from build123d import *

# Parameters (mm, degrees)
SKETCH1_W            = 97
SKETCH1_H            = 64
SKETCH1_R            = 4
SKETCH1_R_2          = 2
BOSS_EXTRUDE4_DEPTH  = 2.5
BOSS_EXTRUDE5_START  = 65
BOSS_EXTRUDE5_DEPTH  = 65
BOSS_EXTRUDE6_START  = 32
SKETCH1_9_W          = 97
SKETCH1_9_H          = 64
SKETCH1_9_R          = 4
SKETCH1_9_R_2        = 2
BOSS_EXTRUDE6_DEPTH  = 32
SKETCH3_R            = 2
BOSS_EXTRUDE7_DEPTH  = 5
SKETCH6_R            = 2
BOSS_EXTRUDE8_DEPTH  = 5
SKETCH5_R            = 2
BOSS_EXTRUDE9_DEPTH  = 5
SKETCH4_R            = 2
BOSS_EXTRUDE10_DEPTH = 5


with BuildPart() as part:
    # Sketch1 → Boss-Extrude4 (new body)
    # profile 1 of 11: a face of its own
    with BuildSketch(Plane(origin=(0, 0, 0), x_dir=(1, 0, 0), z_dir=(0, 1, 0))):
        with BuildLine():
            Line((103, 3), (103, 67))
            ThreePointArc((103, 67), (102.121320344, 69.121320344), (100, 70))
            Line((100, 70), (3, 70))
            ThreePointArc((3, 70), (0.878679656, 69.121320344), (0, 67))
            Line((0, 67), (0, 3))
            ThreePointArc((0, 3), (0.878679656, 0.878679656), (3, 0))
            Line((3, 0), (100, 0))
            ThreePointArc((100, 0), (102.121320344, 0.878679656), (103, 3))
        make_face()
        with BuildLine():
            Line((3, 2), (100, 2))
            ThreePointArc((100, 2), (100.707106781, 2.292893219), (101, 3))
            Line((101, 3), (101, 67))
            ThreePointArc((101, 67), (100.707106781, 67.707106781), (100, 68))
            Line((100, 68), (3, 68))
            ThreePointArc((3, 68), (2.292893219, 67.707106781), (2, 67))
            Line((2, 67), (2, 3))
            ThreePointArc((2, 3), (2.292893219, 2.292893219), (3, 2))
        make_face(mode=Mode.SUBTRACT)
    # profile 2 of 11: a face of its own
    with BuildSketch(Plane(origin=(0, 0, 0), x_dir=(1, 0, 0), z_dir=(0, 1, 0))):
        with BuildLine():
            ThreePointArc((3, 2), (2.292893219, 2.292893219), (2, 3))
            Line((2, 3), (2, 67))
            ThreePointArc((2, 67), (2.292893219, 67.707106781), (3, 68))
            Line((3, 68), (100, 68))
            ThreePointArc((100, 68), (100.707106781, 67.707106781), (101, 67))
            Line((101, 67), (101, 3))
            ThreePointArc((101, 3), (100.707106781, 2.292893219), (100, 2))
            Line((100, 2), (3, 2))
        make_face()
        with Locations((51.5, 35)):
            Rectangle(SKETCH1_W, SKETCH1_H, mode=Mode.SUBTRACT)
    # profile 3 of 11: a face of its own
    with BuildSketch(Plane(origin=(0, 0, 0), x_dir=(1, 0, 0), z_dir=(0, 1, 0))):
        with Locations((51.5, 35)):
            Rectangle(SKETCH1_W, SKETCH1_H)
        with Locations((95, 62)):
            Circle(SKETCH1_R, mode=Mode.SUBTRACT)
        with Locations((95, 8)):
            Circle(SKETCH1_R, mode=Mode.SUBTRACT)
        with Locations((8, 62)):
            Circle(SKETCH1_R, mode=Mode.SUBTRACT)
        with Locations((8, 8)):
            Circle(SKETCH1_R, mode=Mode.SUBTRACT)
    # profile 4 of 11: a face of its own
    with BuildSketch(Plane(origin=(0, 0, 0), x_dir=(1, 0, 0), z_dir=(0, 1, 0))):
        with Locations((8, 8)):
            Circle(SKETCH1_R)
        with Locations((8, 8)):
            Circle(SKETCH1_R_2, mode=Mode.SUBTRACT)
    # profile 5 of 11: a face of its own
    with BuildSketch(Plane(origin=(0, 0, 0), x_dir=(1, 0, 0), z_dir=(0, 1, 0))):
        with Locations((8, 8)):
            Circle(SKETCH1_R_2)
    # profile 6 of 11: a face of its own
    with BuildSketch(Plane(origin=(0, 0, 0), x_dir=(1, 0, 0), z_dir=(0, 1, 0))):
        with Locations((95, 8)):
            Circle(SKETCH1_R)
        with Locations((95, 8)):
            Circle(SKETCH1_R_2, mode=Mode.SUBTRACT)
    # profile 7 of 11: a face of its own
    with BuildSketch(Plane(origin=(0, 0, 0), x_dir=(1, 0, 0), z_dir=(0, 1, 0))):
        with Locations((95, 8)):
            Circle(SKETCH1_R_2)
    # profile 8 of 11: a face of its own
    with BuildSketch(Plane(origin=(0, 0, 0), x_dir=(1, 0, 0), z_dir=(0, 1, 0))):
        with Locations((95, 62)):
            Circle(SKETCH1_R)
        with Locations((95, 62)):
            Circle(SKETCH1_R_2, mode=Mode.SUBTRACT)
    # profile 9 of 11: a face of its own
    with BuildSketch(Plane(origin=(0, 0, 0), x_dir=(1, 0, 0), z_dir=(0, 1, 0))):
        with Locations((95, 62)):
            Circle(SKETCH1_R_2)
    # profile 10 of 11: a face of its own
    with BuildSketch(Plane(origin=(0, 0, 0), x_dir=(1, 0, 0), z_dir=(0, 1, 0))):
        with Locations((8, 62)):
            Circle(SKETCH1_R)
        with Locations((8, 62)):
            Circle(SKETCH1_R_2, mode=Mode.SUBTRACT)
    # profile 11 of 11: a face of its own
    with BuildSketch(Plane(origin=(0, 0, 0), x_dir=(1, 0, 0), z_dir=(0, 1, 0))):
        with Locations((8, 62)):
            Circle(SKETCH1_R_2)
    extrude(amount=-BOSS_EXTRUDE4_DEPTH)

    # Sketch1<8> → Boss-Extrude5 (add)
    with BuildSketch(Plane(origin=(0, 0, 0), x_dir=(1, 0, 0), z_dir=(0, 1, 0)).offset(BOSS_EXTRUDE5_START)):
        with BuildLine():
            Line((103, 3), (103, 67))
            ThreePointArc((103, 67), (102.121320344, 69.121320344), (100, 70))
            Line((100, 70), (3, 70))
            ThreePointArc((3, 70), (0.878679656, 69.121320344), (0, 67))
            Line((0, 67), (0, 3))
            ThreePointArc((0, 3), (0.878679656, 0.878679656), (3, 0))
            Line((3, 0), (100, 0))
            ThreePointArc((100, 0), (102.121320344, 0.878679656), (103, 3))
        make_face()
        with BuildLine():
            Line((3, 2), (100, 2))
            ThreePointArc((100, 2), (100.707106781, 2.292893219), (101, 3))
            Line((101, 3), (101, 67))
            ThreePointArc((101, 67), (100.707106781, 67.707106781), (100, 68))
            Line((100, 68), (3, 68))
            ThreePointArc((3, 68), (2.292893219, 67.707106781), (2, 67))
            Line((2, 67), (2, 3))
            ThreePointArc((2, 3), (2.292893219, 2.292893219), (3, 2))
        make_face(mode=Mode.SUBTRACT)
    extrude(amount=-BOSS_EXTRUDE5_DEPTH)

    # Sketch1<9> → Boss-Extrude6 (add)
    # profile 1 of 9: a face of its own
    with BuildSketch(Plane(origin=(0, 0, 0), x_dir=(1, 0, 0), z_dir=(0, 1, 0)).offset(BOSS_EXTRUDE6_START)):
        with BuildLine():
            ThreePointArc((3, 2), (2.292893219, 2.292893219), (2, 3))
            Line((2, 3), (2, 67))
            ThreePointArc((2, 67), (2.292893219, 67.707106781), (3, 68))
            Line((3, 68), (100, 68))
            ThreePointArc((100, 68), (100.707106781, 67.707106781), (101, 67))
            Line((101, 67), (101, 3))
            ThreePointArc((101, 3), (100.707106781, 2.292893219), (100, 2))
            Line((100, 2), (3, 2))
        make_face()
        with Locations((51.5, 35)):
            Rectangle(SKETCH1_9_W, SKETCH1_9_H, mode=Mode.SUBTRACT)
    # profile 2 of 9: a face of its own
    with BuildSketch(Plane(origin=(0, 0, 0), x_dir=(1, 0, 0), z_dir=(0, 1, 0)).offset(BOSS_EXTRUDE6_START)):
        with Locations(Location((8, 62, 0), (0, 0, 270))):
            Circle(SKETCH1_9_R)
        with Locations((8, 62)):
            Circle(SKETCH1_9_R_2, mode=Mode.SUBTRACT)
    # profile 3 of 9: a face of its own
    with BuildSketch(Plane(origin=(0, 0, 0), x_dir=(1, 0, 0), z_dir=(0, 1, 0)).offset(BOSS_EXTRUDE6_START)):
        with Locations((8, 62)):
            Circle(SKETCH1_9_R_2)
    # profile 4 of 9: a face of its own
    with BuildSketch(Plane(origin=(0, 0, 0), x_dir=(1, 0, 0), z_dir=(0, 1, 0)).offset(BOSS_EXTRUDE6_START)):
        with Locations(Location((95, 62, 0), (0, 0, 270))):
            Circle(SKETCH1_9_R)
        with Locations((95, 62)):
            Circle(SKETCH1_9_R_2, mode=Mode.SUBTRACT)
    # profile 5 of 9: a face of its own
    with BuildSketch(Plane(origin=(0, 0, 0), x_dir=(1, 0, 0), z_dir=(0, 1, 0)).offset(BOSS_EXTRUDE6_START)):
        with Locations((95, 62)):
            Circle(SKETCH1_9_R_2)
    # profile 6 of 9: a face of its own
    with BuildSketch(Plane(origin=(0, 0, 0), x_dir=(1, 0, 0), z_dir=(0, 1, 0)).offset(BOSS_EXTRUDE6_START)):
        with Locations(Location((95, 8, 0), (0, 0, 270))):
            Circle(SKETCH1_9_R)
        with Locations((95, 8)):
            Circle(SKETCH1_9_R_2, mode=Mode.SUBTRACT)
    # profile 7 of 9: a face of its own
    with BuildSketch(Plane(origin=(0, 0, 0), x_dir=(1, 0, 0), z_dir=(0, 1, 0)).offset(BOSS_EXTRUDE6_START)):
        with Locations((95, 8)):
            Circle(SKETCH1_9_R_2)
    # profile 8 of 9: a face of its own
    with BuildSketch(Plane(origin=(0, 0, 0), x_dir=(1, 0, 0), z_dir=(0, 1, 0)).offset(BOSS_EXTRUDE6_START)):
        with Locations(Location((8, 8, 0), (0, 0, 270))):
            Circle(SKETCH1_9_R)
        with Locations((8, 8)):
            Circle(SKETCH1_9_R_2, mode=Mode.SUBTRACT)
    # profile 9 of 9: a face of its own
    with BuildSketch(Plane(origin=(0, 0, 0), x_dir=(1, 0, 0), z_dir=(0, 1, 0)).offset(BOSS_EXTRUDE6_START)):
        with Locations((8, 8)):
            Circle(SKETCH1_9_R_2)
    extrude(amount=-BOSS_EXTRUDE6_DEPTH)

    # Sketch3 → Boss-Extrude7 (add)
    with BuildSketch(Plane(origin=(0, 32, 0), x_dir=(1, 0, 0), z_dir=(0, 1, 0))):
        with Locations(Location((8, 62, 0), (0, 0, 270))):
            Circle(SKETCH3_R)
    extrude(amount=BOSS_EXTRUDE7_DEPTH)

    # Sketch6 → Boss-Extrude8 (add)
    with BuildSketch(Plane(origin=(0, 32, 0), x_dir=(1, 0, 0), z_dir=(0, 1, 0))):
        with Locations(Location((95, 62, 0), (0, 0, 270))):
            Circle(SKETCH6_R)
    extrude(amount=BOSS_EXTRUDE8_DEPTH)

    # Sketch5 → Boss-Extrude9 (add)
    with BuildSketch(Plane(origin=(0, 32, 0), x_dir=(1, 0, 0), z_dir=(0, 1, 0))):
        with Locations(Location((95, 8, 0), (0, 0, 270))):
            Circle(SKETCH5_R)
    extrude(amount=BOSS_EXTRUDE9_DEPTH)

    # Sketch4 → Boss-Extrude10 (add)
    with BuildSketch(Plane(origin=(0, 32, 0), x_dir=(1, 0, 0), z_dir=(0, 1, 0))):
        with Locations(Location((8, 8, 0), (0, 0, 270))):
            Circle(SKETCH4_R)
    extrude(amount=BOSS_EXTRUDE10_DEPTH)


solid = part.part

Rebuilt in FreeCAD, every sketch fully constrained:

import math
import FreeCAD as App
import Part
import Sketcher
Q = App.Units.Quantity


def add_polygon(sketch, points):
    """Adds a closed chain of lines whose ends are joined by coincident constraints."""
    first, n = sketch.GeometryCount, len(points)
    for a, b in zip(points, points[1:] + points[:1]):
        sketch.addGeometry(Part.LineSegment(App.Vector(*a, 0), App.Vector(*b, 0)), False)
    for i in range(n):
        sketch.addConstraint(Sketcher.Constraint("Coincident", first + i, 2, first + (i + 1) % n, 1))

doc = App.newDocument("Part")
body = doc.addObject("PartDesign::Body", "Body")

# Sketch on XZ plane
sketch1 = doc.addObject("Sketcher::SketchObject", "Sketch")
body.addObject(sketch1)
sketch1.AttachmentSupport = (doc.XZ_Plane, [""])
sketch1.MapMode = "FlatFace"
sketch1.addGeometry([
    Part.LineSegment(App.Vector(103, -3, 0), App.Vector(103, -67, 0)),  # 0
    Part.ArcOfCircle(Part.Circle(App.Vector(100, -67, 0), App.Vector(0, 0, 1), 3), math.radians(-90), math.radians(0)),  # 1
    Part.LineSegment(App.Vector(100, -70, 0), App.Vector(3, -70, 0)),  # 2
    Part.ArcOfCircle(Part.Circle(App.Vector(3, -67, 0), App.Vector(0, 0, 1), 3), math.radians(180), math.radians(270)),  # 3
    Part.LineSegment(App.Vector(0, -67, 0), App.Vector(0, -3, 0)),  # 4
    Part.ArcOfCircle(Part.Circle(App.Vector(3, -3, 0), App.Vector(0, 0, 1), 3), math.radians(90), math.radians(180)),  # 5
    Part.LineSegment(App.Vector(3, 0, 0), App.Vector(100, 0, 0)),  # 6
    Part.ArcOfCircle(Part.Circle(App.Vector(100, -3, 0), App.Vector(0, 0, 1), 3), math.radians(0), math.radians(90)),  # 7
], False)
sketch1.addConstraint([
    Sketcher.Constraint("Tangent", 0, 2, 1, 2),
    Sketcher.Constraint("Tangent", 1, 1, 2, 1),
    Sketcher.Constraint("Tangent", 2, 2, 3, 2),
    Sketcher.Constraint("Tangent", 3, 1, 4, 1),
    Sketcher.Constraint("Tangent", 4, 2, 5, 2),
    Sketcher.Constraint("Tangent", 5, 1, 6, 1),
    Sketcher.Constraint("Tangent", 6, 2, 7, 2),
    Sketcher.Constraint("Tangent", 7, 1, 0, 1),
    Sketcher.Constraint("Vertical", 0),
    Sketcher.Constraint("Horizontal", 2),
    Sketcher.Constraint("Vertical", 4),
    Sketcher.Constraint("Horizontal", 6),
    Sketcher.Constraint("Equal", 1, 3),
    Sketcher.Constraint("Equal", 3, 5),
    Sketcher.Constraint("Equal", 5, 7),
    Sketcher.Constraint("PointOnObject", 3, 1, -2),
    Sketcher.Constraint("PointOnObject", 5, 1, -1),
    Sketcher.Constraint("Radius", 1, Q("3 mm")),
    Sketcher.Constraint("DistanceX", 2, 2, 2, 1, Q("97 mm")),
    Sketcher.Constraint("DistanceY", 0, 2, 0, 1, Q("64 mm")),
])
pad1 = doc.addObject("PartDesign::Pad", "Pad")
body.addObject(pad1)
pad1.Profile = sketch1
pad1.Length = 2.5

# Sketch on XZ plane
sketch2 = doc.addObject("Sketcher::SketchObject", "Sketch001")
body.addObject(sketch2)
sketch2.AttachmentSupport = (doc.XZ_Plane, [""])
sketch2.MapMode = "FlatFace"
sketch2.AttachmentOffset = App.Placement(App.Vector(0, 0, -65), App.Rotation())
sketch2.addGeometry([
    Part.LineSegment(App.Vector(103, -3, 0), App.Vector(103, -67, 0)),  # 0
    Part.ArcOfCircle(Part.Circle(App.Vector(100, -67, 0), App.Vector(0, 0, 1), 3), math.radians(-90), math.radians(0)),  # 1
    Part.LineSegment(App.Vector(100, -70, 0), App.Vector(3, -70, 0)),  # 2
    Part.ArcOfCircle(Part.Circle(App.Vector(3, -67, 0), App.Vector(0, 0, 1), 3), math.radians(180), math.radians(270)),  # 3
    Part.LineSegment(App.Vector(0, -67, 0), App.Vector(0, -3, 0)),  # 4
    Part.ArcOfCircle(Part.Circle(App.Vector(3, -3, 0), App.Vector(0, 0, 1), 3), math.radians(90), math.radians(180)),  # 5
    Part.LineSegment(App.Vector(3, 0, 0), App.Vector(100, 0, 0)),  # 6
    Part.ArcOfCircle(Part.Circle(App.Vector(100, -3, 0), App.Vector(0, 0, 1), 3), math.radians(0), math.radians(90)),  # 7
    Part.LineSegment(App.Vector(100, -2, 0), App.Vector(3, -2, 0)),  # 8
    Part.ArcOfCircle(Part.Circle(App.Vector(3, -3, 0), App.Vector(0, 0, 1), 1), math.radians(90), math.radians(180)),  # 9
    Part.LineSegment(App.Vector(2, -3, 0), App.Vector(2, -67, 0)),  # 10
    Part.ArcOfCircle(Part.Circle(App.Vector(3, -67, 0), App.Vector(0, 0, 1), 1), math.radians(-180), math.radians(-90)),  # 11
    Part.LineSegment(App.Vector(3, -68, 0), App.Vector(100, -68, 0)),  # 12
    Part.ArcOfCircle(Part.Circle(App.Vector(100, -67, 0), App.Vector(0, 0, 1), 1), math.radians(-90), math.radians(0)),  # 13
    Part.LineSegment(App.Vector(101, -67, 0), App.Vector(101, -3, 0)),  # 14
    Part.ArcOfCircle(Part.Circle(App.Vector(100, -3, 0), App.Vector(0, 0, 1), 1), math.radians(0), math.radians(90)),  # 15
], False)
sketch2.addConstraint([
    Sketcher.Constraint("Tangent", 0, 2, 1, 2),
    Sketcher.Constraint("Tangent", 1, 1, 2, 1),
    Sketcher.Constraint("Tangent", 2, 2, 3, 2),
    Sketcher.Constraint("Tangent", 3, 1, 4, 1),
    Sketcher.Constraint("Tangent", 4, 2, 5, 2),
    Sketcher.Constraint("Tangent", 5, 1, 6, 1),
    Sketcher.Constraint("Tangent", 6, 2, 7, 2),
    Sketcher.Constraint("Tangent", 7, 1, 0, 1),
    Sketcher.Constraint("Tangent", 8, 2, 9, 1),
    Sketcher.Constraint("Tangent", 9, 2, 10, 1),
    Sketcher.Constraint("Tangent", 10, 2, 11, 1),
    Sketcher.Constraint("Tangent", 11, 2, 12, 1),
    Sketcher.Constraint("Tangent", 12, 2, 13, 1),
    Sketcher.Constraint("Tangent", 13, 2, 14, 1),
    Sketcher.Constraint("Tangent", 14, 2, 15, 1),
    Sketcher.Constraint("Tangent", 15, 2, 8, 1),
    Sketcher.Constraint("Vertical", 0),
    Sketcher.Constraint("Horizontal", 2),
    Sketcher.Constraint("Vertical", 4),
    Sketcher.Constraint("Horizontal", 6),
    Sketcher.Constraint("Horizontal", 8),
    Sketcher.Constraint("Vertical", 10),
    Sketcher.Constraint("Horizontal", 12),
    Sketcher.Constraint("Vertical", 14),
    Sketcher.Constraint("Coincident", 9, 3, 5, 3),
    Sketcher.Constraint("Coincident", 11, 3, 3, 3),
    Sketcher.Constraint("Coincident", 13, 3, 1, 3),
    Sketcher.Constraint("Equal", 1, 3),
    Sketcher.Constraint("Equal", 3, 5),
    Sketcher.Constraint("Equal", 5, 7),
    Sketcher.Constraint("Equal", 13, 15),
    Sketcher.Constraint("PointOnObject", 3, 1, -2),
    Sketcher.Constraint("PointOnObject", 5, 1, -1),
    Sketcher.Constraint("Radius", 1, Q("3 mm")),
    Sketcher.Constraint("Radius", 9, Q("1 mm")),
    Sketcher.Constraint("DistanceX", 2, 2, 2, 1, Q("97 mm")),
    Sketcher.Constraint("DistanceY", 0, 2, 0, 1, Q("64 mm")),
])
pad2 = doc.addObject("PartDesign::Pad", "Pad001")
body.addObject(pad2)
pad2.Profile = sketch2
pad2.Length = 65

# Sketch on XZ plane
sketch3 = doc.addObject("Sketcher::SketchObject", "Sketch002")
body.addObject(sketch3)
sketch3.AttachmentSupport = (doc.XZ_Plane, [""])
sketch3.MapMode = "FlatFace"
sketch3.AttachmentOffset = App.Placement(App.Vector(0, 0, -32), App.Rotation())
sketch3.addGeometry(Part.ArcOfCircle(Part.Circle(App.Vector(3, -3, 0), App.Vector(0, 0, 1), 1), math.radians(90), math.radians(180)), False)  # 0
sketch3.addGeometry(Part.LineSegment(App.Vector(3, -2, 0), App.Vector(100, -2, 0)), False)  # 1
sketch3.addGeometry(Part.ArcOfCircle(Part.Circle(App.Vector(100, -3, 0), App.Vector(0, 0, 1), 1), math.radians(0), math.radians(90)), False)  # 2
sketch3.addGeometry(Part.LineSegment(App.Vector(101, -3, 0), App.Vector(101, -67, 0)), False)  # 3
sketch3.addGeometry(Part.ArcOfCircle(Part.Circle(App.Vector(100, -67, 0), App.Vector(0, 0, 1), 1), math.radians(-90), math.radians(0)), False)  # 4
sketch3.addGeometry(Part.LineSegment(App.Vector(100, -68, 0), App.Vector(3, -68, 0)), False)  # 5
sketch3.addGeometry(Part.ArcOfCircle(Part.Circle(App.Vector(3, -67, 0), App.Vector(0, 0, 1), 1), math.radians(-180), math.radians(-90)), False)  # 6
sketch3.addGeometry(Part.LineSegment(App.Vector(2, -67, 0), App.Vector(2, -3, 0)), False)  # 7
add_polygon(sketch3, [(3, -3), (3, -67), (100, -67), (100, -3)])  # lines 8-11
sketch3.addGeometry(Part.Circle(App.Vector(8, -62, 0), App.Vector(0, 0, 1), 4), False)  # 12
sketch3.addGeometry(Part.Circle(App.Vector(95, -62, 0), App.Vector(0, 0, 1), 4), False)  # 13
sketch3.addGeometry(Part.Circle(App.Vector(95, -8, 0), App.Vector(0, 0, 1), 4), False)  # 14
sketch3.addGeometry(Part.Circle(App.Vector(8, -8, 0), App.Vector(0, 0, 1), 4), False)  # 15
sketch3.addConstraint([
    Sketcher.Constraint("Tangent", 0, 1, 1, 1),
    Sketcher.Constraint("Tangent", 1, 2, 2, 2),
    Sketcher.Constraint("Tangent", 2, 1, 3, 1),
    Sketcher.Constraint("Tangent", 3, 2, 4, 2),
    Sketcher.Constraint("Tangent", 4, 1, 5, 1),
    Sketcher.Constraint("Tangent", 5, 2, 6, 2),
    Sketcher.Constraint("Tangent", 6, 1, 7, 1),
    Sketcher.Constraint("Tangent", 7, 2, 0, 2),
    Sketcher.Constraint("Horizontal", 1),
    Sketcher.Constraint("Vertical", 3),
    Sketcher.Constraint("Horizontal", 5),
    Sketcher.Constraint("Vertical", 7),
    Sketcher.Constraint("Vertical", 8),
    Sketcher.Constraint("Horizontal", 9),
    Sketcher.Constraint("Vertical", 10),
    Sketcher.Constraint("Horizontal", 11),
    Sketcher.Constraint("Coincident", 8, 2, 6, 3),
    Sketcher.Constraint("Coincident", 9, 2, 4, 3),
    Sketcher.Constraint("Coincident", 10, 2, 2, 3),
    Sketcher.Constraint("Equal", 0, 2),
    Sketcher.Constraint("Equal", 12, 13),
    Sketcher.Constraint("Equal", 13, 14),
    Sketcher.Constraint("Equal", 14, 15),
    Sketcher.Constraint("Horizontal", 12, 3, 13, 3),
    Sketcher.Constraint("Horizontal", 14, 3, 15, 3),
    Sketcher.Constraint("Vertical", 13, 3, 14, 3),
    Sketcher.Constraint("Vertical", 12, 3, 15, 3),
    Sketcher.Constraint("Diameter", 12, Q("8 mm")),
    Sketcher.Constraint("Radius", 0, Q("1 mm")),
    Sketcher.Constraint("DistanceX", 1, 1, 1, 2, Q("97 mm")),
    Sketcher.Constraint("DistanceY", 3, 2, 3, 1, Q("64 mm")),
    Sketcher.Constraint("DistanceX", -1, 1, 0, 3, Q("3 mm")),
    Sketcher.Constraint("DistanceY", 0, 3, -1, 1, Q("3 mm")),
    Sketcher.Constraint("DistanceX", -1, 1, 12, 3, Q("8 mm")),
    Sketcher.Constraint("DistanceY", 12, 3, -1, 1, Q("62 mm")),
    Sketcher.Constraint("DistanceX", -1, 1, 13, 3, Q("95 mm")),
    Sketcher.Constraint("DistanceY", 14, 3, -1, 1, Q("8 mm")),
])
pad3 = doc.addObject("PartDesign::Pad", "Pad002")
body.addObject(pad3)
pad3.Profile = sketch3
pad3.Length = 32

# Sketch on XZ plane
sketch4 = doc.addObject("Sketcher::SketchObject", "Sketch003")
body.addObject(sketch4)
sketch4.AttachmentSupport = (doc.XZ_Plane, [""])
sketch4.MapMode = "FlatFace"
sketch4.AttachmentOffset = App.Placement(App.Vector(0, 0, -32), App.Rotation())
sketch4.addGeometry(Part.Circle(App.Vector(8, -62, 0), App.Vector(0, 0, 1), 2), False)
sketch4.addConstraint([
    Sketcher.Constraint("Diameter", 0, Q("4 mm")),
    Sketcher.Constraint("DistanceX", -1, 1, 0, 3, Q("8 mm")),
    Sketcher.Constraint("DistanceY", 0, 3, -1, 1, Q("62 mm")),
])
pad4 = doc.addObject("PartDesign::Pad", "Pad003")
body.addObject(pad4)
pad4.Profile = sketch4
pad4.Length = 5
pad4.Reversed = True

# Sketch on XZ plane
sketch5 = doc.addObject("Sketcher::SketchObject", "Sketch004")
body.addObject(sketch5)
sketch5.AttachmentSupport = (doc.XZ_Plane, [""])
sketch5.MapMode = "FlatFace"
sketch5.AttachmentOffset = App.Placement(App.Vector(0, 0, -32), App.Rotation())
sketch5.addGeometry(Part.Circle(App.Vector(95, -62, 0), App.Vector(0, 0, 1), 2), False)
sketch5.addConstraint([
    Sketcher.Constraint("Diameter", 0, Q("4 mm")),
    Sketcher.Constraint("DistanceX", -1, 1, 0, 3, Q("95 mm")),
    Sketcher.Constraint("DistanceY", 0, 3, -1, 1, Q("62 mm")),
])
pad5 = doc.addObject("PartDesign::Pad", "Pad004")
body.addObject(pad5)
pad5.Profile = sketch5
pad5.Length = 5
pad5.Reversed = True

# Sketch on XZ plane
sketch6 = doc.addObject("Sketcher::SketchObject", "Sketch005")
body.addObject(sketch6)
sketch6.AttachmentSupport = (doc.XZ_Plane, [""])
sketch6.MapMode = "FlatFace"
sketch6.AttachmentOffset = App.Placement(App.Vector(0, 0, -32), App.Rotation())
sketch6.addGeometry(Part.Circle(App.Vector(95, -8, 0), App.Vector(0, 0, 1), 2), False)
sketch6.addConstraint([
    Sketcher.Constraint("Diameter", 0, Q("4 mm")),
    Sketcher.Constraint("DistanceX", -1, 1, 0, 3, Q("95 mm")),
    Sketcher.Constraint("DistanceY", 0, 3, -1, 1, Q("8 mm")),
])
pad6 = doc.addObject("PartDesign::Pad", "Pad005")
body.addObject(pad6)
pad6.Profile = sketch6
pad6.Length = 5
pad6.Reversed = True

# Sketch on XZ plane
sketch7 = doc.addObject("Sketcher::SketchObject", "Sketch006")
body.addObject(sketch7)
sketch7.AttachmentSupport = (doc.XZ_Plane, [""])
sketch7.MapMode = "FlatFace"
sketch7.AttachmentOffset = App.Placement(App.Vector(0, 0, -32), App.Rotation())
sketch7.addGeometry(Part.Circle(App.Vector(8, -8, 0), App.Vector(0, 0, 1), 2), False)
sketch7.addConstraint([
    Sketcher.Constraint("Diameter", 0, Q("4 mm")),
    Sketcher.Constraint("DistanceX", -1, 1, 0, 3, Q("8 mm")),
    Sketcher.Constraint("DistanceY", 0, 3, -1, 1, Q("8 mm")),
])
pad7 = doc.addObject("PartDesign::Pad", "Pad006")
body.addObject(pad7)
pad7.Profile = sketch7
pad7.Length = 5
pad7.Reversed = True

doc.recompute()
